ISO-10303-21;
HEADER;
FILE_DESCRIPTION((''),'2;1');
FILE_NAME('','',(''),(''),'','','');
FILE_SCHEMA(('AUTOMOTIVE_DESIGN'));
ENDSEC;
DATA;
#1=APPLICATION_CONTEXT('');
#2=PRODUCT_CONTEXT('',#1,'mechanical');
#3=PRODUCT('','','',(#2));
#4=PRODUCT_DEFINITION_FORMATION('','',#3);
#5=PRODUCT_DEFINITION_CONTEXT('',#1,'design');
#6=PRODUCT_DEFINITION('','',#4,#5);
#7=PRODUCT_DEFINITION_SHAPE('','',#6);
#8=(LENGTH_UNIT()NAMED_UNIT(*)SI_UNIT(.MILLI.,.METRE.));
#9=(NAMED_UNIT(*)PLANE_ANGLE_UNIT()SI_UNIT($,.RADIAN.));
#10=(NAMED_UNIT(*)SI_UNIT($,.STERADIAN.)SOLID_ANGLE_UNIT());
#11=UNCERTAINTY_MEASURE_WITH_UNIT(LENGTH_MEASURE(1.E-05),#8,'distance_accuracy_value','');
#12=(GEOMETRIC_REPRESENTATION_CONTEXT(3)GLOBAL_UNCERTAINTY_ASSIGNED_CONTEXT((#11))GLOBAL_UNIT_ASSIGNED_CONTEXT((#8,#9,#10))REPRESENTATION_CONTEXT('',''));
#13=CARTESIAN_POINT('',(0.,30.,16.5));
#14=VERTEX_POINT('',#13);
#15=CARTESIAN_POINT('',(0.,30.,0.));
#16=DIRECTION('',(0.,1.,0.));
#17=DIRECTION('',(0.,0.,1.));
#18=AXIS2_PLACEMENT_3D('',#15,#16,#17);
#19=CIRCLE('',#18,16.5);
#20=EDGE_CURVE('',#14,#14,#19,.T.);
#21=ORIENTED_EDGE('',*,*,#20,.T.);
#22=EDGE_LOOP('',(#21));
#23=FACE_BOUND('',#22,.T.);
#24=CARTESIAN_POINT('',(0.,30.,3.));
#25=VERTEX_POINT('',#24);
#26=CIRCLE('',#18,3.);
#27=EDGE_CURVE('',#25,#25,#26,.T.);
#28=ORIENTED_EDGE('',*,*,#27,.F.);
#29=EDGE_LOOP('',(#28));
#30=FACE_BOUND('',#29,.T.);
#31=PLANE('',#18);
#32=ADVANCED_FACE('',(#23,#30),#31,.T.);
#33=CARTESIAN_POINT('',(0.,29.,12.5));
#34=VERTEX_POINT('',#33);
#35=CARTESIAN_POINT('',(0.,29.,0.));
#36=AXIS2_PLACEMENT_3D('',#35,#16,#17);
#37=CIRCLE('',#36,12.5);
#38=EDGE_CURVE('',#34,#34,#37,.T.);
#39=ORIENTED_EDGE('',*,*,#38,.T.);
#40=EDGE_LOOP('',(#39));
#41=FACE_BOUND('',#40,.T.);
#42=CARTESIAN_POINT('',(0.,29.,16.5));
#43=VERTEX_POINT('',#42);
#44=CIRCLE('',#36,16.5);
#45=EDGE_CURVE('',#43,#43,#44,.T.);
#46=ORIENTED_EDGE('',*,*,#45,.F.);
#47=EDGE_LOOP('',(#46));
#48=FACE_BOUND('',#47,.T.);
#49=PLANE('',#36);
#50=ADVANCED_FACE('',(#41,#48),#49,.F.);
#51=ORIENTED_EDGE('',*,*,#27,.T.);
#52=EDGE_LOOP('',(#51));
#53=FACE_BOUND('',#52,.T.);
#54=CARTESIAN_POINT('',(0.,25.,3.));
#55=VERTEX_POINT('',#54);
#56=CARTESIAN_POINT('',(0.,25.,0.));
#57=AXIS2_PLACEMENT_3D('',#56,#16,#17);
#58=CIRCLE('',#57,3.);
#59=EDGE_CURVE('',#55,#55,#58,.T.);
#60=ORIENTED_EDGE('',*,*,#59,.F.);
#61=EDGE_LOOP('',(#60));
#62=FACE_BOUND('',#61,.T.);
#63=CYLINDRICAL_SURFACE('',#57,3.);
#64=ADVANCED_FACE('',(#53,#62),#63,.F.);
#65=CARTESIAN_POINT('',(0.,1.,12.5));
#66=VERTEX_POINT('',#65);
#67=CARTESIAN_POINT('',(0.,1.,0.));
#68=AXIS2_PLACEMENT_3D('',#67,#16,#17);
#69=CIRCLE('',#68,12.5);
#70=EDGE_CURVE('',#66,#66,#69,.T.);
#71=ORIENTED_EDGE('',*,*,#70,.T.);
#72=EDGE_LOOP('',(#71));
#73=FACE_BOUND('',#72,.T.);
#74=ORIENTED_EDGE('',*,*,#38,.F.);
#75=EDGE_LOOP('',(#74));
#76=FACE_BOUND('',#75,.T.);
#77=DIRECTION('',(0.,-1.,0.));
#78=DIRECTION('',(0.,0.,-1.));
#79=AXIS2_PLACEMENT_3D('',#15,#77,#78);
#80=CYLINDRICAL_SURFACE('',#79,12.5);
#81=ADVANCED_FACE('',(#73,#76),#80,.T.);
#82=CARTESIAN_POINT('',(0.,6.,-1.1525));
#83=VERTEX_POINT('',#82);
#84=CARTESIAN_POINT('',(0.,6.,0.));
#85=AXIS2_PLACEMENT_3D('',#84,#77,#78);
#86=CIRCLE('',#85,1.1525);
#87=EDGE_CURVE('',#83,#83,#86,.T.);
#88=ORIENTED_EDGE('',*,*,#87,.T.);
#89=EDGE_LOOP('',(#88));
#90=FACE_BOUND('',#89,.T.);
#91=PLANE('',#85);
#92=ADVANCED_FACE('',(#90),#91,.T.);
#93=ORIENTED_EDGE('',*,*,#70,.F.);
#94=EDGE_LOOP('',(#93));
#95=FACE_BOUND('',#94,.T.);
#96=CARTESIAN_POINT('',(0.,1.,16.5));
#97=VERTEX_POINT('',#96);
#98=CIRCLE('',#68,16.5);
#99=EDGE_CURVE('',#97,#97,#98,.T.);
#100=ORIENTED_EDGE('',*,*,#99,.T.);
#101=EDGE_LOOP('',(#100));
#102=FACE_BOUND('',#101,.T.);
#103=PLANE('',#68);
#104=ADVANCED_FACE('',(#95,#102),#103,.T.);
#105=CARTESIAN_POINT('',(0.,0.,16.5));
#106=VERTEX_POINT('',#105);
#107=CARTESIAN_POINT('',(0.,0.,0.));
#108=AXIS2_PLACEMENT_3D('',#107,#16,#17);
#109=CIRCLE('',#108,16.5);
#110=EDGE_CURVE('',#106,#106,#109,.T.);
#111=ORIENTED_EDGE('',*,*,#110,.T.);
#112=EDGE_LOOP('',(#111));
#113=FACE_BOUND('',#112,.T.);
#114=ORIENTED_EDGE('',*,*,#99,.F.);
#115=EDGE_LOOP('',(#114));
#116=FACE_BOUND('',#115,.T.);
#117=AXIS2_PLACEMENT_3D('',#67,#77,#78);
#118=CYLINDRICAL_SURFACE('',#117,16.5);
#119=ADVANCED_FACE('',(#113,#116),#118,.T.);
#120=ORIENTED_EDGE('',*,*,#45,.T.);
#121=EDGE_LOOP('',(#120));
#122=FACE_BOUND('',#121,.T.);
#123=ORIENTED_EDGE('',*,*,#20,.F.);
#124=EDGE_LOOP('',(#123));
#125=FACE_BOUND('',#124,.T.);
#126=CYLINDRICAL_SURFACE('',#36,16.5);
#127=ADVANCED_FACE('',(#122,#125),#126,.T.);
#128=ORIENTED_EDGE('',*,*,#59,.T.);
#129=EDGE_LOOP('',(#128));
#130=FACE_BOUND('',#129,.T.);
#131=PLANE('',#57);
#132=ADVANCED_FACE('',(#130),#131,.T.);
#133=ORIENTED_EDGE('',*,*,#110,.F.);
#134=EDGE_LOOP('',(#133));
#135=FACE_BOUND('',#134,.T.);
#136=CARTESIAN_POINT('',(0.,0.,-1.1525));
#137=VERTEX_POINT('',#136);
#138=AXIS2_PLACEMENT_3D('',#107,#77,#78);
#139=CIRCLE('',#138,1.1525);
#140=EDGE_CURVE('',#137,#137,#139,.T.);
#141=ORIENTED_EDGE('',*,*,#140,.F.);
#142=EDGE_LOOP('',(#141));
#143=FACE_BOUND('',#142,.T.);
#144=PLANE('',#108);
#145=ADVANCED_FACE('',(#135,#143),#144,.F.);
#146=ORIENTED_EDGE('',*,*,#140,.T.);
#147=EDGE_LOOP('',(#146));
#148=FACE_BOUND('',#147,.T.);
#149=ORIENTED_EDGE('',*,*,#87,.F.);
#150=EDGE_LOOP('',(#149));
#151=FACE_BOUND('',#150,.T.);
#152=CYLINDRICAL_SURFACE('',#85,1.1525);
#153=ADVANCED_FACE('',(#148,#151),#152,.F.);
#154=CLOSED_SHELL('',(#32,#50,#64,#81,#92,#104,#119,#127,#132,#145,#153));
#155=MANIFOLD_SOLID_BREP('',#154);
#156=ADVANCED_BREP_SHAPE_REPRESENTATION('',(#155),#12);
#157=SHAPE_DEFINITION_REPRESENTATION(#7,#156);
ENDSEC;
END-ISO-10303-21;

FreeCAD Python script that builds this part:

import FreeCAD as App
import Part
import Sketcher
from FreeCAD import Vector
Q = App.Units.Quantity

doc = App.newDocument("Part")
params = doc.addObject("Spreadsheet::Sheet", "Params")
for row, (alias, value) in enumerate([
    ("sketch1_diameter", "25 mm"),
    ("pad1_length", "30 mm"),
    ("sketch2_diameter", "33 mm"),
    ("sketch2_diameter2", "25 mm"),
    ("pad2_length", "1 mm"),
    ("sketch3_diameter", "33 mm"),
    ("pad3_length", "1 mm"),
    ("pocket1_length", "6 mm"),
    ("sketch5_diameter", "6 mm"),
    ("pocket2_length", "5 mm"),
], start=1):
    params.set(f"A{row}", alias)
    params.set(f"B{row}", "=" + value)
    params.setAlias(f"B{row}", alias)

body = doc.addObject("PartDesign::Body", "Body")

# Sketch on XZ plane
sketch1 = body.newObject("Sketcher::SketchObject", "Sketch")
sketch1.AttachmentSupport = (doc.getObject("XZ_Plane"), [""])
sketch1.MapMode = "FlatFace"
sketch1.addGeometry(Part.Circle(Vector(0, 0, 0), Vector(0, 0, 1), 12.5), False)
sketch1.addConstraint([
    Sketcher.Constraint("Coincident", 0, 3, -1, 1),
    Sketcher.Constraint("Diameter", 0, Q("25 mm")),
])
sketch1.setExpression("Constraints[1]", "Params.sketch1_diameter")
pad1 = body.newObject("PartDesign::Pad", "Pad")
pad1.Profile = sketch1
pad1.setExpression("Length", "Params.pad1_length")
pad1.Reversed = True

# Sketch on XZ plane
sketch2 = body.newObject("Sketcher::SketchObject", "Sketch001")
sketch2.AttachmentSupport = (doc.getObject("XZ_Plane"), [""])
sketch2.MapMode = "FlatFace"
sketch2.addGeometry([
    Part.Circle(Vector(0, 0, 0), Vector(0, 0, 1), 16.5),
    Part.Circle(Vector(0, 0, 0), Vector(0, 0, 1), 12.5),
], False)
sketch2.addConstraint([
    Sketcher.Constraint("Coincident", 0, 3, -1, 1),
    Sketcher.Constraint("Coincident", 1, 3, -1, 1),
    Sketcher.Constraint("Diameter", 0, Q("33 mm")),
    Sketcher.Constraint("Diameter", 1, Q("25 mm")),
])
sketch2.setExpression("Constraints[2]", "Params.sketch2_diameter")
sketch2.setExpression("Constraints[3]", "Params.sketch2_diameter2")
pad2 = body.newObject("PartDesign::Pad", "Pad001")
pad2.Profile = sketch2
pad2.setExpression("Length", "Params.pad2_length")
pad2.Reversed = True

# Sketch on XZ plane
sketch3 = body.newObject("Sketcher::SketchObject", "Sketch002")
sketch3.AttachmentSupport = (doc.getObject("XZ_Plane"), [""])
sketch3.MapMode = "FlatFace"
sketch3.AttachmentOffset = App.Placement(Vector(0, 0, -30), App.Rotation())
sketch3.addGeometry(Part.Circle(Vector(0, 0, 0), Vector(0, 0, 1), 16.5), False)
sketch3.addConstraint([
    Sketcher.Constraint("Coincident", 0, 3, -1, 1),
    Sketcher.Constraint("Diameter", 0, Q("33 mm")),
])
sketch3.setExpression("Constraints[1]", "Params.sketch3_diameter")
pad3 = body.newObject("PartDesign::Pad", "Pad002")
pad3.Profile = sketch3
pad3.setExpression("Length", "Params.pad3_length")

# Sketch on XZ plane
sketch4 = body.newObject("Sketcher::SketchObject", "Sketch003")
sketch4.AttachmentSupport = (doc.getObject("XZ_Plane"), [""])
sketch4.MapMode = "FlatFace"
sketch4.addGeometry(Part.Circle(Vector(0, 0, 0), Vector(0, 0, 1), 1.1525), False)
sketch4.addConstraint([
    Sketcher.Constraint("Coincident", 0, 3, -1, 1),
    Sketcher.Constraint("Diameter", 0, Q("2.305 mm")),
])
pocket1 = body.newObject("PartDesign::Pocket", "Pocket")
pocket1.Profile = sketch4
pocket1.setExpression("Length", "Params.pocket1_length")

# Sketch on XZ plane
sketch5 = body.newObject("Sketcher::SketchObject", "Sketch004")
sketch5.AttachmentSupport = (doc.getObject("XZ_Plane"), [""])
sketch5.MapMode = "FlatFace"
sketch5.AttachmentOffset = App.Placement(Vector(0, 0, -30), App.Rotation())
sketch5.addGeometry(Part.Circle(Vector(0, 0, 0), Vector(0, 0, 1), 3), False)
sketch5.addConstraint([
    Sketcher.Constraint("Coincident", 0, 3, -1, 1),
    Sketcher.Constraint("Diameter", 0, Q("6 mm")),
])
sketch5.setExpression("Constraints[1]", "Params.sketch5_diameter")
pocket2 = body.newObject("PartDesign::Pocket", "Pocket001")
pocket2.Profile = sketch5
pocket2.setExpression("Length", "Params.pocket2_length")
pocket2.Reversed = True

doc.recompute()
